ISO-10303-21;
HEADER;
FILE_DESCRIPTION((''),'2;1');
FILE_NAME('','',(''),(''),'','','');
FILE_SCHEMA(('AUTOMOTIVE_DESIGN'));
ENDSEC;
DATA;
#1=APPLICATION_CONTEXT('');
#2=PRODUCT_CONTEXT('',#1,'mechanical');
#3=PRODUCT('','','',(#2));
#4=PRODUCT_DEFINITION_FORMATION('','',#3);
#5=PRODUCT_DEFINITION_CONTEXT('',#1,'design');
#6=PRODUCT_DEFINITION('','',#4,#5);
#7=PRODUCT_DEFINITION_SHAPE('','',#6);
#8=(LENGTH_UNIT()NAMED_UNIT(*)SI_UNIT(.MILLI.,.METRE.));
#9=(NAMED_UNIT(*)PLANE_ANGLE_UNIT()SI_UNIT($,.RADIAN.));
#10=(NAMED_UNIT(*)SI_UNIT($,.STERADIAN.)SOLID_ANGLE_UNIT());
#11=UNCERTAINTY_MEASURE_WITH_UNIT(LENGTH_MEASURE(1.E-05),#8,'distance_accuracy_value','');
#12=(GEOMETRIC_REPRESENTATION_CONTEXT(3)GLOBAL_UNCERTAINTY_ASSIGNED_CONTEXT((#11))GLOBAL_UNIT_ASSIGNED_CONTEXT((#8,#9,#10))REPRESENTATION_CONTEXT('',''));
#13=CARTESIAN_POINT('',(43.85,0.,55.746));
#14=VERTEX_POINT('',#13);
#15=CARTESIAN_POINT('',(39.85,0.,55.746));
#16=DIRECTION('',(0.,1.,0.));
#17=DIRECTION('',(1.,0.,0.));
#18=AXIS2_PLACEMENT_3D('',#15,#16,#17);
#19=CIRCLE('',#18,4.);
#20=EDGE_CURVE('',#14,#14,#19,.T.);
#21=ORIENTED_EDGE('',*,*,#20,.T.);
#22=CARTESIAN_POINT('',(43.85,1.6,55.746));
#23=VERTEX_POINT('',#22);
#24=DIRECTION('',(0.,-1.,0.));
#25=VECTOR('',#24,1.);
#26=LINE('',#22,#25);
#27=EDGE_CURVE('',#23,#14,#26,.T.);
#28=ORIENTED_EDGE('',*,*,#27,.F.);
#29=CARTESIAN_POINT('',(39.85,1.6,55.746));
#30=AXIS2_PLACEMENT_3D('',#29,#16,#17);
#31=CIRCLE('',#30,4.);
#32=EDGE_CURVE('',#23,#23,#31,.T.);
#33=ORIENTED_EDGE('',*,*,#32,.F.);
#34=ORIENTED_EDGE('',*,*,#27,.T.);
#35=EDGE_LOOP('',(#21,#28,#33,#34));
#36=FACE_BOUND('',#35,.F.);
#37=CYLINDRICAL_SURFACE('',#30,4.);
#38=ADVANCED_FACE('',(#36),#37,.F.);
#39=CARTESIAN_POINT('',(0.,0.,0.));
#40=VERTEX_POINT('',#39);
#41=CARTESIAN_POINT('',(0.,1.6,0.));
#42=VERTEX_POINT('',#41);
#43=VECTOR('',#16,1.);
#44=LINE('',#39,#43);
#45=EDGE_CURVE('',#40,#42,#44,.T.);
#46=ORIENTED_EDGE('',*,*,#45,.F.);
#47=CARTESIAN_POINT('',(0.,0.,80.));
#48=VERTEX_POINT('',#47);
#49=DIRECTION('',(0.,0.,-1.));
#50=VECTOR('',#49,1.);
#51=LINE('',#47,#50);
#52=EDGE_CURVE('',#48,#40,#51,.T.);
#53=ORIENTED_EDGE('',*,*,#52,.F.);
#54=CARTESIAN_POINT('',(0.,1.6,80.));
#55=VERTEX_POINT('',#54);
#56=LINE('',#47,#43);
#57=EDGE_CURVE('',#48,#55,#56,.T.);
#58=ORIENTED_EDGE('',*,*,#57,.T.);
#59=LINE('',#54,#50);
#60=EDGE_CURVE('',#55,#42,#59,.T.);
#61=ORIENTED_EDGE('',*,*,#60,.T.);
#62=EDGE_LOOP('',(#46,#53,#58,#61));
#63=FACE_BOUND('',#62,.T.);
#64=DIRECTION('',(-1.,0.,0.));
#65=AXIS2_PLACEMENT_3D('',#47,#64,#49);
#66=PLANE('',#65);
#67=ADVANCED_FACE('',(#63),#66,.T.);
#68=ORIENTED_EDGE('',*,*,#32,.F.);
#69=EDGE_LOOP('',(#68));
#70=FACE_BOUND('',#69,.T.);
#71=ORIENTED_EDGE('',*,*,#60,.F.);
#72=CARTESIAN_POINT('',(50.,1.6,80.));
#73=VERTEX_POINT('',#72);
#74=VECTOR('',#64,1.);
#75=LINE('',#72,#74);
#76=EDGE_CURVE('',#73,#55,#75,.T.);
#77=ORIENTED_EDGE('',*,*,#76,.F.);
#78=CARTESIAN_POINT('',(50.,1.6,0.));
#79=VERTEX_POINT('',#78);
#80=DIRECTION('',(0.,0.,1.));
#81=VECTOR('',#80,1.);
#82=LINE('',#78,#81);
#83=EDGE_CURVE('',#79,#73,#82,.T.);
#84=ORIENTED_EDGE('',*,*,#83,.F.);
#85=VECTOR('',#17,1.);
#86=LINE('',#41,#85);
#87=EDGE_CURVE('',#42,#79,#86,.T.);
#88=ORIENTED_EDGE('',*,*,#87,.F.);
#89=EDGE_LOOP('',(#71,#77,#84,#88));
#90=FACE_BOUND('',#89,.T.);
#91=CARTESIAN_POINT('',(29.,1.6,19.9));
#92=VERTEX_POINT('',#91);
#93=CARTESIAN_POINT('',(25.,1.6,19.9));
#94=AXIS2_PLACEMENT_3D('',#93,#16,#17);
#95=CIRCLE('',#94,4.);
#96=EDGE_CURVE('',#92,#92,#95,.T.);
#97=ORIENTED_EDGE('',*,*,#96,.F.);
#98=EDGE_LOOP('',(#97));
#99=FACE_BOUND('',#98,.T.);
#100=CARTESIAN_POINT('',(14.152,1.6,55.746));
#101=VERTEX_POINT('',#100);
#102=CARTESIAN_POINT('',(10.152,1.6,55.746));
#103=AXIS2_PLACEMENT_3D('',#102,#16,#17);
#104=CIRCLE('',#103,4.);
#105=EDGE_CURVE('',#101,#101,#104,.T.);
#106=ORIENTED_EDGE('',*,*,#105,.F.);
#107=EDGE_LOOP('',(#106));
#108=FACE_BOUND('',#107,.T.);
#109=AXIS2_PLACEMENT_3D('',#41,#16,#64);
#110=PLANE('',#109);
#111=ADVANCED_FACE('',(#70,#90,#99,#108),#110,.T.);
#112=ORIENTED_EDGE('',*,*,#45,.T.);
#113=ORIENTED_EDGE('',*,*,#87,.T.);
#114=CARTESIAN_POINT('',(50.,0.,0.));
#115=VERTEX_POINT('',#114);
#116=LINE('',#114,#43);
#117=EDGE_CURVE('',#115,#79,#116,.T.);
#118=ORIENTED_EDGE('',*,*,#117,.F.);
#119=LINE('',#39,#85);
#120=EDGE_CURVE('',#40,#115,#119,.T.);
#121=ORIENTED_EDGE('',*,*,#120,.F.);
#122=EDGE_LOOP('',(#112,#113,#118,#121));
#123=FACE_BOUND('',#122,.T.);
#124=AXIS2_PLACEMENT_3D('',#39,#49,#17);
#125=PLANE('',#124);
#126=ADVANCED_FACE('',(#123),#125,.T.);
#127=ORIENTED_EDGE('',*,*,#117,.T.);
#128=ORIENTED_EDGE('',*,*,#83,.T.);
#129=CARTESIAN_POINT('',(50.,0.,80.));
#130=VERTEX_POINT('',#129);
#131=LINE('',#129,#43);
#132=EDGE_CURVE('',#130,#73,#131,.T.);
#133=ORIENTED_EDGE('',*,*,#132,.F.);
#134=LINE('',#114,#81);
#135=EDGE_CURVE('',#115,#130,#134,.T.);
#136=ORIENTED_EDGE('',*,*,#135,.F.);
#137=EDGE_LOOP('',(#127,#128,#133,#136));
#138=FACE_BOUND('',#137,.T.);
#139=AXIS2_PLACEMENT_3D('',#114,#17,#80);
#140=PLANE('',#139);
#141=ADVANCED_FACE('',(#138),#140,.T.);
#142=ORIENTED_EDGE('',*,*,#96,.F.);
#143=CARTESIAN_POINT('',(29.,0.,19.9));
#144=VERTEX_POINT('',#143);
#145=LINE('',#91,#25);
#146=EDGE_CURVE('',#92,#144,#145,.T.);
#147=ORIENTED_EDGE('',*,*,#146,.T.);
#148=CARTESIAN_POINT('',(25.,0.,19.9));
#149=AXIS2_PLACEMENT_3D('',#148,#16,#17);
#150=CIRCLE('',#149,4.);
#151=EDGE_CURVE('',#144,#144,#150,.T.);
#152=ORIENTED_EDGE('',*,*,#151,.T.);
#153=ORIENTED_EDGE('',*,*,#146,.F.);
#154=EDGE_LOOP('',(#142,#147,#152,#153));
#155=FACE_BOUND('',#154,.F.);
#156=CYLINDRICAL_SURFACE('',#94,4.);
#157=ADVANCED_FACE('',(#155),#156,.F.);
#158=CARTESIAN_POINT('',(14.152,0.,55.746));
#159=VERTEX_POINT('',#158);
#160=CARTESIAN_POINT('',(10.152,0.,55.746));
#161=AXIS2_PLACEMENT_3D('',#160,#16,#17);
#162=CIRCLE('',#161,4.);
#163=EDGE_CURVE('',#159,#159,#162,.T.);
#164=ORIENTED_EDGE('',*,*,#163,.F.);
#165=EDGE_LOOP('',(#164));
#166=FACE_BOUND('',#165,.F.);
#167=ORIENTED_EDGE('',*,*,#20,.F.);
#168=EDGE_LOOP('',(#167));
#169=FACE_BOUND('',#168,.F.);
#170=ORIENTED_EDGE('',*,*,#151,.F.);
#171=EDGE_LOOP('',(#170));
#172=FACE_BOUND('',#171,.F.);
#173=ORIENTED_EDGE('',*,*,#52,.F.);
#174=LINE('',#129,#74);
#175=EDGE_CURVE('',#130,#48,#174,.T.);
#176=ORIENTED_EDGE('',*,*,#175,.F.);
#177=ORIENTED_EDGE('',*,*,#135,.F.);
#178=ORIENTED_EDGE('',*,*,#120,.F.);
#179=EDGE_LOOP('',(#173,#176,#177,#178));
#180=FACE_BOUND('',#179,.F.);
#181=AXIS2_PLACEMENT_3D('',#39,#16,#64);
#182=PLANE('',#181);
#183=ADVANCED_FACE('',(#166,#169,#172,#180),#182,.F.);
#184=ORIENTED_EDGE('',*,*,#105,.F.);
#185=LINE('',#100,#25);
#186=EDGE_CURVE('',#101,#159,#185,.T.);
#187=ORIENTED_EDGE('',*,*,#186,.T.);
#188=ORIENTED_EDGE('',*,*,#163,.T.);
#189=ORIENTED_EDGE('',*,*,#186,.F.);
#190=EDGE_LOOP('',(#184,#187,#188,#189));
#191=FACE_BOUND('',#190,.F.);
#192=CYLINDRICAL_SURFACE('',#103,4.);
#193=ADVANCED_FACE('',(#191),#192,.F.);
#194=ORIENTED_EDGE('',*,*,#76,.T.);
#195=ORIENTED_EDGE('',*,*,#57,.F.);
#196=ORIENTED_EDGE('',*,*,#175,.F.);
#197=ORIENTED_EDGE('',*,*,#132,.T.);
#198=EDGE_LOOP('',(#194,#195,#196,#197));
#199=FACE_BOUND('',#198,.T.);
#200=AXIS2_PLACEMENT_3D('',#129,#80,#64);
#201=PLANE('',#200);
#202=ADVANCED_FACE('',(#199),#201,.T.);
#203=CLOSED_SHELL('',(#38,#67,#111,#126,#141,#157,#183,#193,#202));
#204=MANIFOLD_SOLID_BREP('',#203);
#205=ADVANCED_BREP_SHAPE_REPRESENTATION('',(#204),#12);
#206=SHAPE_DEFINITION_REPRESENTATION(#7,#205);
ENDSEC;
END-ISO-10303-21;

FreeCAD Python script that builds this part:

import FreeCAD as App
import Part
import Sketcher
Q = App.Units.Quantity

doc = App.newDocument("Part")
body = doc.addObject("PartDesign::Body", "Body")

sketch1 = doc.addObject("Sketcher::SketchObject", "Sketch")
body.addObject(sketch1)
sketch1.AttachmentSupport = (doc.XZ_Plane, [""])
sketch1.MapMode = "FlatFace"
sketch1.addGeometry([
    Part.LineSegment(App.Vector(50, 0, 0), App.Vector(0, 0, 0)),
    Part.LineSegment(App.Vector(0, 0, 0), App.Vector(0, 80, 0)),
    Part.LineSegment(App.Vector(0, 80, 0), App.Vector(50, 80, 0)),
    Part.LineSegment(App.Vector(50, 80, 0), App.Vector(50, 0, 0)),
], False)
sketch1.addConstraint([
    Sketcher.Constraint("Coincident", 0, 2, 1, 1),
    Sketcher.Constraint("Coincident", 1, 2, 2, 1),
    Sketcher.Constraint("Coincident", 2, 2, 3, 1),
    Sketcher.Constraint("Coincident", 3, 2, 0, 1),
    Sketcher.Constraint("Horizontal", 0),
    Sketcher.Constraint("Vertical", 1),
    Sketcher.Constraint("Horizontal", 2),
    Sketcher.Constraint("Vertical", 3),
    Sketcher.Constraint("Coincident", 0, 2, -1, 1),
    Sketcher.Constraint("DistanceX", 0, 2, 0, 1, Q("50 mm")),
    Sketcher.Constraint("DistanceY", 1, 1, 1, 2, Q("80 mm")),
])
pad1 = doc.addObject("PartDesign::Pad", "Pad")
body.addObject(pad1)
pad1.Profile = sketch1
pad1.Length = 1.6
pad1.Reversed = True

sketch2 = doc.addObject("Sketcher::SketchObject", "Sketch001")
body.addObject(sketch2)
sketch2.AttachmentSupport = (doc.XZ_Plane, [""])
sketch2.MapMode = "FlatFace"
sketch2.AttachmentOffset = App.Placement(App.Vector(0, 0, -1.6), App.Rotation())
sketch2.addGeometry([
    Part.Circle(App.Vector(10.152, 55.746, 0), App.Vector(0, 0, 1), 4),
    Part.Circle(App.Vector(39.85, 55.746, 0), App.Vector(0, 0, 1), 4),
    Part.Circle(App.Vector(25, 19.9, 0), App.Vector(0, 0, 1), 4),
], False)
sketch2.addConstraint([
    Sketcher.Constraint("Equal", 0, 1),
    Sketcher.Constraint("Equal", 1, 2),
    Sketcher.Constraint("Horizontal", 0, 3, 1, 3),
    Sketcher.Constraint("Diameter", 0, Q("8 mm")),
    Sketcher.Constraint("DistanceY", -1, 1, 2, 3, Q("19.9 mm")),
    Sketcher.Constraint("DistanceX", -1, 1, 0, 3, Q("10.152 mm")),
    Sketcher.Constraint("DistanceX", -1, 1, 2, 3, Q("25 mm")),
    Sketcher.Constraint("DistanceX", 0, 3, 1, 3, Q("29.698 mm")),
    Sketcher.Constraint("DistanceY", -1, 1, 0, 3, Q("55.746 mm")),
])
pocket1 = doc.addObject("PartDesign::Pocket", "Pocket")
body.addObject(pocket1)
pocket1.Profile = sketch2
pocket1.Length = 10
pocket1.Reversed = True

doc.recompute()
